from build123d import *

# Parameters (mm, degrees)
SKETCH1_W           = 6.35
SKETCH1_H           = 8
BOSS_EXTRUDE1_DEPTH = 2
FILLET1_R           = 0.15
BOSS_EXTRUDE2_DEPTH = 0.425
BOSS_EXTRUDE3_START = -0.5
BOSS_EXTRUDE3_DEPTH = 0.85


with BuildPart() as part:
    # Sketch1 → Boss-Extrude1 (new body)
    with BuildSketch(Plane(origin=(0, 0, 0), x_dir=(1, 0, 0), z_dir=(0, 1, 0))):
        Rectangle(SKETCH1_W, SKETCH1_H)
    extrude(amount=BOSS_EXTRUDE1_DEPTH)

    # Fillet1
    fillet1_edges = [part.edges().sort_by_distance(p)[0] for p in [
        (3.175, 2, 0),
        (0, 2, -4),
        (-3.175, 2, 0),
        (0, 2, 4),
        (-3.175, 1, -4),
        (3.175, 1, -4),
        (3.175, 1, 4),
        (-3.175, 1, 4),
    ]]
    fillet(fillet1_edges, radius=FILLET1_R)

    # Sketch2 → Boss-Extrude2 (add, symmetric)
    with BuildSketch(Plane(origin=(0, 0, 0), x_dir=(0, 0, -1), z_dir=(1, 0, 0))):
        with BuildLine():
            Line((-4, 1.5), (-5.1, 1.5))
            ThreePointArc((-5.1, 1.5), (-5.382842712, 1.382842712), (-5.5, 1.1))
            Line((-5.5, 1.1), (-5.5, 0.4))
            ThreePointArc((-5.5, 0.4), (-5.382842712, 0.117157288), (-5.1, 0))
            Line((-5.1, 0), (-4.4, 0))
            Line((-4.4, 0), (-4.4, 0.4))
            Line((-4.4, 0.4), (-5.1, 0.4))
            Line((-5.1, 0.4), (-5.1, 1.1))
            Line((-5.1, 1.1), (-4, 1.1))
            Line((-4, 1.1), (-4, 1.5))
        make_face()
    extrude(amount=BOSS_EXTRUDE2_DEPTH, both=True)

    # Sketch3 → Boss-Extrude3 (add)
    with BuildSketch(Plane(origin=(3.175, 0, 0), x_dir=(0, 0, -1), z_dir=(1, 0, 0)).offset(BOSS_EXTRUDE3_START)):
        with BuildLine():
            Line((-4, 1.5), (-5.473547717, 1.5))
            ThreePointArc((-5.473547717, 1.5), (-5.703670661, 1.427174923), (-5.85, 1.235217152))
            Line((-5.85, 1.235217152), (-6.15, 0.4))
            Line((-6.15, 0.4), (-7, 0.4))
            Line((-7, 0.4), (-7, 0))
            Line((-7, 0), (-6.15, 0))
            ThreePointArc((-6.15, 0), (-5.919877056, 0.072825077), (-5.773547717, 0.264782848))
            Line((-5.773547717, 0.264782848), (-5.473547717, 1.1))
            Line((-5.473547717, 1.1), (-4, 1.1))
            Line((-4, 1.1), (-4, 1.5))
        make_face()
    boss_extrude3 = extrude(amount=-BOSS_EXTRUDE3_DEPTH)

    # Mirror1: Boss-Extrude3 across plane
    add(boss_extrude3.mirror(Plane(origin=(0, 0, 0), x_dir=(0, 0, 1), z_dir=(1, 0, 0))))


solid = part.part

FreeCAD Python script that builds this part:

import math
import FreeCAD as App
import Part
import Sketcher

V = App.Vector
Q = App.Units.Quantity


def edges_at(feature, points):
    """Names of the edges that pass closest to the given points."""
    edges = feature.Shape.Edges
    near = lambda p: min(range(len(edges)), key=lambda i: edges[i].distToShape(Part.Vertex(*p))[0])
    return sorted({f"Edge{near(p) + 1}" for p in points})

doc = App.newDocument("Part")
params = doc.addObject("Spreadsheet::Sheet", "Params")
for row, (alias, value) in enumerate([
    ("sketch1_height", "8 mm"),
    ("sketch1_width", "6.35 mm"),
    ("pad1_length", "2 mm"),
    ("fillet_radius", "0.15 mm"),
    ("sketch2_radius", "0.4 mm"),
    ("sketch2_width", "0.7 mm"),
    ("sketch2_height", "1.1 mm"),
    ("pad2_length", "0.85 mm"),
    ("sketch3_radius", "0.4 mm"),
    ("sketch3_height", "0.85 mm"),
    ("pad3_length", "0.85 mm"),
], start=1):
    params.set(f"A{row}", alias)
    params.set(f"B{row}", "=" + value)
    params.setAlias(f"B{row}", alias)

body = doc.addObject("PartDesign::Body", "Body")

# Sketch on XZ plane
sketch1 = doc.addObject("Sketcher::SketchObject", "Sketch")
body.addObject(sketch1)
sketch1.AttachmentSupport = (doc.XZ_Plane, [""])
sketch1.MapMode = "FlatFace"
sketch1.addGeometry([
    Part.LineSegment(V(-3, -4, 0), V(-3, 4, 0)),
    Part.LineSegment(V(-3, 4, 0), V(3, 4, 0)),
    Part.LineSegment(V(3, 4, 0), V(3, -4, 0)),
    Part.LineSegment(V(3, -4, 0), V(-3, -4, 0)),
], False)
sketch1.addConstraint([
    Sketcher.Constraint("Coincident", 0, 2, 1, 1),
    Sketcher.Constraint("Coincident", 1, 2, 2, 1),
    Sketcher.Constraint("Coincident", 2, 2, 3, 1),
    Sketcher.Constraint("Coincident", 3, 2, 0, 1),
    Sketcher.Constraint("Vertical", 0),
    Sketcher.Constraint("Horizontal", 1),
    Sketcher.Constraint("Vertical", 2),
    Sketcher.Constraint("Horizontal", 3),
    Sketcher.Constraint("Symmetric", 0, 2, 2, 2, -1, 1),
    Sketcher.Constraint("DistanceY", 0, 1, 0, 2, Q("8 mm")),
    Sketcher.Constraint("DistanceX", 1, 1, 1, 2, Q("6.35 mm")),
])
sketch1.setExpression("Constraints[9]", "Params.sketch1_height")
sketch1.setExpression("Constraints[10]", "Params.sketch1_width")
pad1 = doc.addObject("PartDesign::Pad", "Pad")
body.addObject(pad1)
pad1.Profile = sketch1
pad1.setExpression("Length", "Params.pad1_length")
pad1.Reversed = True
doc.recompute()

fillet = doc.addObject("PartDesign::Fillet", "Fillet")
body.addObject(fillet)
fillet.Base = (pad1, edges_at(pad1, [
    (3.175, 2, 0),
    (0, 2, -4),
    (-3.175, 2, 0),
    (0, 2, 4),
    (-3.175, 1, -4),
    (3.175, 1, -4),
    (3.175, 1, 4),
    (-3.175, 1, 4),
]))
fillet.setExpression("Radius", "Params.fillet_radius")

# Sketch on YZ plane
sketch2 = doc.addObject("Sketcher::SketchObject", "Sketch001")
body.addObject(sketch2)
sketch2.AttachmentSupport = (doc.YZ_Plane, [""])
sketch2.MapMode = "FlatFace"
sketch2.addGeometry([
    Part.LineSegment(V(1.5, 4, 0), V(1.5, 5.1, 0)),  # 0
    Part.ArcOfCircle(Part.Circle(V(1.1, 5.1, 0), V(0, 0, 1), 0.4), math.radians(0), math.radians(90)),  # 1
    Part.LineSegment(V(1.1, 5.5, 0), V(0.4, 5.5, 0)),  # 2
    Part.ArcOfCircle(Part.Circle(V(0.4, 5.1, 0), V(0, 0, 1), 0.4), math.radians(90), math.radians(180)),  # 3
    Part.LineSegment(V(0, 5.1, 0), V(0, 4.4, 0)),  # 4
    Part.LineSegment(V(0, 4.4, 0), V(0.4, 4.4, 0)),  # 5
    Part.LineSegment(V(0.4, 4.4, 0), V(0.4, 5.1, 0)),  # 6
    Part.LineSegment(V(0.4, 5.1, 0), V(1.1, 5.1, 0)),  # 7
    Part.LineSegment(V(1.1, 5.1, 0), V(1.1, 4, 0)),  # 8
    Part.LineSegment(V(1.1, 4, 0), V(1.5, 4, 0)),  # 9
], False)
sketch2.addConstraint([
    Sketcher.Constraint("Tangent", 0, 2, 1, 1),
    Sketcher.Constraint("Tangent", 1, 2, 2, 1),
    Sketcher.Constraint("Tangent", 2, 2, 3, 1),
    Sketcher.Constraint("Tangent", 3, 2, 4, 1),
    Sketcher.Constraint("Coincident", 4, 2, 5, 1),
    Sketcher.Constraint("Coincident", 5, 2, 6, 1),
    Sketcher.Constraint("Coincident", 6, 2, 7, 1),
    Sketcher.Constraint("Coincident", 7, 2, 8, 1),
    Sketcher.Constraint("Coincident", 8, 2, 9, 1),
    Sketcher.Constraint("Coincident", 9, 2, 0, 1),
    Sketcher.Constraint("Vertical", 0),
    Sketcher.Constraint("Horizontal", 2),
    Sketcher.Constraint("Vertical", 4),
    Sketcher.Constraint("Horizontal", 5),
    Sketcher.Constraint("Vertical", 6),
    Sketcher.Constraint("Horizontal", 7),
    Sketcher.Constraint("Vertical", 8),
    Sketcher.Constraint("Horizontal", 9),
    Sketcher.Constraint("Coincident", 6, 2, 3, 3),
    Sketcher.Constraint("Coincident", 7, 2, 1, 3),
    Sketcher.Constraint("PointOnObject", 3, 2, -2),
    Sketcher.Constraint("Equal", 7, 4),
    Sketcher.Constraint("Radius", 1, Q("0.4 mm")),
    Sketcher.Constraint("DistanceX", 2, 2, 2, 1, Q("0.7 mm")),
    Sketcher.Constraint("DistanceY", 0, 1, 0, 2, Q("1.1 mm")),
    Sketcher.Constraint("DistanceY", -1, 1, 8, 2, Q("4 mm")),
])
sketch2.setExpression("Constraints[22]", "Params.sketch2_radius")
sketch2.setExpression("Constraints[23]", "Params.sketch2_width")
sketch2.setExpression("Constraints[24]", "Params.sketch2_height")
pad2 = doc.addObject("PartDesign::Pad", "Pad001")
body.addObject(pad2)
pad2.Profile = sketch2
pad2.setExpression("Length", "Params.pad2_length")
pad2.Midplane = True

# Sketch on YZ plane
sketch3 = doc.addObject("Sketcher::SketchObject", "Sketch002")
body.addObject(sketch3)
sketch3.AttachmentSupport = (doc.YZ_Plane, [""])
sketch3.MapMode = "FlatFace"
sketch3.AttachmentOffset = App.Placement(V(0, 0, 2.675), App.Rotation())
sketch3.addGeometry([
    Part.LineSegment(V(1.5, 4, 0), V(1.5, 5.47, 0)),  # 0
    Part.ArcOfCircle(Part.Circle(V(1.1, 5.47, 0), V(0, 0, 1), 0.4), math.radians(0), math.radians(70)),  # 1
    Part.LineSegment(V(1.24, 5.85, 0), V(0.4, 6.15, 0)),  # 2
    Part.LineSegment(V(0.4, 6.15, 0), V(0.4, 7, 0)),  # 3
    Part.LineSegment(V(0.4, 7, 0), V(0, 7, 0)),  # 4
    Part.LineSegment(V(0, 7, 0), V(0, 6.15, 0)),  # 5
    Part.ArcOfCircle(Part.Circle(V(0.4, 6.15, 0), V(0, 0, 1), 0.4), math.radians(-180), math.radians(-110)),  # 6
    Part.LineSegment(V(0.26, 5.77, 0), V(1.1, 5.47, 0)),  # 7
    Part.LineSegment(V(1.1, 5.47, 0), V(1.1, 4, 0)),  # 8
    Part.LineSegment(V(1.1, 4, 0), V(1.5, 4, 0)),  # 9
], False)
sketch3.addConstraint([
    Sketcher.Constraint("Tangent", 0, 2, 1, 1),
    Sketcher.Constraint("Tangent", 1, 2, 2, 1),
    Sketcher.Constraint("Coincident", 2, 2, 3, 1),
    Sketcher.Constraint("Coincident", 3, 2, 4, 1),
    Sketcher.Constraint("Coincident", 4, 2, 5, 1),
    Sketcher.Constraint("Tangent", 5, 2, 6, 1),
    Sketcher.Constraint("Tangent", 6, 2, 7, 1),
    Sketcher.Constraint("Coincident", 7, 2, 8, 1),
    Sketcher.Constraint("Coincident", 8, 2, 9, 1),
    Sketcher.Constraint("Coincident", 9, 2, 0, 1),
    Sketcher.Constraint("Vertical", 0),
    Sketcher.Constraint("Vertical", 3),
    Sketcher.Constraint("Horizontal", 4),
    Sketcher.Constraint("Vertical", 5),
    Sketcher.Constraint("Vertical", 8),
    Sketcher.Constraint("Horizontal", 9),
    Sketcher.Constraint("Coincident", 2, 2, 6, 3),
    Sketcher.Constraint("Coincident", 7, 2, 1, 3),
    Sketcher.Constraint("Equal", 1, 6),
    Sketcher.Constraint("PointOnObject", 4, 2, -2),
    Sketcher.Constraint("Radius", 1, Q("0.4 mm")),
    Sketcher.Constraint("DistanceY", -1, 1, 3, 2, Q("7 mm")),
    Sketcher.Constraint("DistanceY", -1, 1, 8, 2, Q("4 mm")),
    Sketcher.Constraint("DistanceY", 3, 1, 3, 2, Q("0.85 mm")),
    Sketcher.Constraint("DistanceX", -1, 1, 1, 3, Q("1.1 mm")),
    Sketcher.Constraint("DistanceY", 1, 2, 6, 3, Q("0.3 mm")),
])
sketch3.setExpression("Constraints[20]", "Params.sketch3_radius")
sketch3.setExpression("Constraints[23]", "Params.sketch3_height")
pad3 = doc.addObject("PartDesign::Pad", "Pad002")
body.addObject(pad3)
pad3.Profile = sketch3
pad3.setExpression("Length", "Params.pad3_length")
pad3.Reversed = True
doc.recompute()

mirrored = doc.addObject("PartDesign::Mirrored", "Mirrored")
body.addObject(mirrored)
mirrored.Originals = [pad3]
mirrored.MirrorPlane = (doc.YZ_Plane, [""])
body.Tip = mirrored

doc.recompute()
